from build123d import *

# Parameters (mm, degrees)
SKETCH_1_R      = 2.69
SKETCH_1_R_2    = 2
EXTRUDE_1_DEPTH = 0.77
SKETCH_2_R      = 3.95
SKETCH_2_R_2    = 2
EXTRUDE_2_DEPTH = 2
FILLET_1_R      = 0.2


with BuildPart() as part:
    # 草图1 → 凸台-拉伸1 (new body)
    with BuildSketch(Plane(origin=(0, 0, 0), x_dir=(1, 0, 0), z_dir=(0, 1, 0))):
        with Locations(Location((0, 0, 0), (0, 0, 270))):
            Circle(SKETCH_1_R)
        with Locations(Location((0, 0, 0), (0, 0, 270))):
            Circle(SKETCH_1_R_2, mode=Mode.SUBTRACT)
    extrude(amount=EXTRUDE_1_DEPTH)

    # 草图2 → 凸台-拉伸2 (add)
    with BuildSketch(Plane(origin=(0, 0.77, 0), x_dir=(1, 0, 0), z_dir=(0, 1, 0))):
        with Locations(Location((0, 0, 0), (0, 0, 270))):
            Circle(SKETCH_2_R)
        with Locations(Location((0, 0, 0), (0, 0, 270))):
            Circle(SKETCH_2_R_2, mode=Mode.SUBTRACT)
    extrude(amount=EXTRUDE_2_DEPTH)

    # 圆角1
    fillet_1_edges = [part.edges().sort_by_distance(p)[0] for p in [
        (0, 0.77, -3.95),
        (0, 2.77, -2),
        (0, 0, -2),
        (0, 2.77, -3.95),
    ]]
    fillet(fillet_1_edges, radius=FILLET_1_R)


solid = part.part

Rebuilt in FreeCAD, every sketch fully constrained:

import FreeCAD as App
import Part
import Sketcher

V = App.Vector
Q = App.Units.Quantity


def edges_at(feature, points):
    """Names of the edges that pass closest to the given points."""
    edges = feature.Shape.Edges
    near = lambda p: min(range(len(edges)), key=lambda i: edges[i].distToShape(Part.Vertex(*p))[0])
    return sorted({f"Edge{near(p) + 1}" for p in points})

doc = App.newDocument("Part")
body = doc.addObject("PartDesign::Body", "Body")

# Sketch on XZ plane
sketch1 = doc.addObject("Sketcher::SketchObject", "Sketch")
body.addObject(sketch1)
sketch1.AttachmentSupport = (doc.XZ_Plane, [""])
sketch1.MapMode = "FlatFace"
sketch1.addGeometry(Part.Circle(V(0, 0, 0), V(0, 0, 1), 2.69), False)
sketch1.addGeometry(Part.Circle(V(0, 0, 0), V(0, 0, 1), 2), False)
sketch1.addConstraint(Sketcher.Constraint("Coincident", 0, 3, -1, 1))
sketch1.addConstraint(Sketcher.Constraint("Coincident", 1, 3, -1, 1))
sketch1.addConstraint(Sketcher.Constraint("Diameter", 1, Q("4 mm")))
sketch1.addConstraint(Sketcher.Constraint("Diameter", 0, Q("5.38 mm")))
pad1 = doc.addObject("PartDesign::Pad", "Pad")
body.addObject(pad1)
pad1.Profile = sketch1
pad1.Length = 0.77
pad1.Reversed = True

# Sketch on XZ plane
sketch2 = doc.addObject("Sketcher::SketchObject", "Sketch001")
body.addObject(sketch2)
sketch2.AttachmentSupport = (doc.XZ_Plane, [""])
sketch2.MapMode = "FlatFace"
sketch2.AttachmentOffset = App.Placement(V(0, 0, -0.77), App.Rotation())
sketch2.addGeometry(Part.Circle(V(0, 0, 0), V(0, 0, 1), 3.95), False)
sketch2.addGeometry(Part.Circle(V(0, 0, 0), V(0, 0, 1), 2), False)
sketch2.addConstraint(Sketcher.Constraint("Coincident", 0, 3, -1, 1))
sketch2.addConstraint(Sketcher.Constraint("Coincident", 1, 3, -1, 1))
sketch2.addConstraint(Sketcher.Constraint("Diameter", 1, Q("4 mm")))
sketch2.addConstraint(Sketcher.Constraint("Diameter", 0, Q("7.9 mm")))
pad2 = doc.addObject("PartDesign::Pad", "Pad001")
body.addObject(pad2)
pad2.Profile = sketch2
pad2.Length = 2
pad2.Reversed = True
doc.recompute()

fillet = doc.addObject("PartDesign::Fillet", "Fillet")
body.addObject(fillet)
fillet.Base = (pad2, edges_at(pad2, [
    (0, 0.77, -3.95),
    (0, 2.77, -2),
    (0, 0, -2),
    (0, 2.77, -3.95),
]))
fillet.Radius = 0.2

doc.recompute()
